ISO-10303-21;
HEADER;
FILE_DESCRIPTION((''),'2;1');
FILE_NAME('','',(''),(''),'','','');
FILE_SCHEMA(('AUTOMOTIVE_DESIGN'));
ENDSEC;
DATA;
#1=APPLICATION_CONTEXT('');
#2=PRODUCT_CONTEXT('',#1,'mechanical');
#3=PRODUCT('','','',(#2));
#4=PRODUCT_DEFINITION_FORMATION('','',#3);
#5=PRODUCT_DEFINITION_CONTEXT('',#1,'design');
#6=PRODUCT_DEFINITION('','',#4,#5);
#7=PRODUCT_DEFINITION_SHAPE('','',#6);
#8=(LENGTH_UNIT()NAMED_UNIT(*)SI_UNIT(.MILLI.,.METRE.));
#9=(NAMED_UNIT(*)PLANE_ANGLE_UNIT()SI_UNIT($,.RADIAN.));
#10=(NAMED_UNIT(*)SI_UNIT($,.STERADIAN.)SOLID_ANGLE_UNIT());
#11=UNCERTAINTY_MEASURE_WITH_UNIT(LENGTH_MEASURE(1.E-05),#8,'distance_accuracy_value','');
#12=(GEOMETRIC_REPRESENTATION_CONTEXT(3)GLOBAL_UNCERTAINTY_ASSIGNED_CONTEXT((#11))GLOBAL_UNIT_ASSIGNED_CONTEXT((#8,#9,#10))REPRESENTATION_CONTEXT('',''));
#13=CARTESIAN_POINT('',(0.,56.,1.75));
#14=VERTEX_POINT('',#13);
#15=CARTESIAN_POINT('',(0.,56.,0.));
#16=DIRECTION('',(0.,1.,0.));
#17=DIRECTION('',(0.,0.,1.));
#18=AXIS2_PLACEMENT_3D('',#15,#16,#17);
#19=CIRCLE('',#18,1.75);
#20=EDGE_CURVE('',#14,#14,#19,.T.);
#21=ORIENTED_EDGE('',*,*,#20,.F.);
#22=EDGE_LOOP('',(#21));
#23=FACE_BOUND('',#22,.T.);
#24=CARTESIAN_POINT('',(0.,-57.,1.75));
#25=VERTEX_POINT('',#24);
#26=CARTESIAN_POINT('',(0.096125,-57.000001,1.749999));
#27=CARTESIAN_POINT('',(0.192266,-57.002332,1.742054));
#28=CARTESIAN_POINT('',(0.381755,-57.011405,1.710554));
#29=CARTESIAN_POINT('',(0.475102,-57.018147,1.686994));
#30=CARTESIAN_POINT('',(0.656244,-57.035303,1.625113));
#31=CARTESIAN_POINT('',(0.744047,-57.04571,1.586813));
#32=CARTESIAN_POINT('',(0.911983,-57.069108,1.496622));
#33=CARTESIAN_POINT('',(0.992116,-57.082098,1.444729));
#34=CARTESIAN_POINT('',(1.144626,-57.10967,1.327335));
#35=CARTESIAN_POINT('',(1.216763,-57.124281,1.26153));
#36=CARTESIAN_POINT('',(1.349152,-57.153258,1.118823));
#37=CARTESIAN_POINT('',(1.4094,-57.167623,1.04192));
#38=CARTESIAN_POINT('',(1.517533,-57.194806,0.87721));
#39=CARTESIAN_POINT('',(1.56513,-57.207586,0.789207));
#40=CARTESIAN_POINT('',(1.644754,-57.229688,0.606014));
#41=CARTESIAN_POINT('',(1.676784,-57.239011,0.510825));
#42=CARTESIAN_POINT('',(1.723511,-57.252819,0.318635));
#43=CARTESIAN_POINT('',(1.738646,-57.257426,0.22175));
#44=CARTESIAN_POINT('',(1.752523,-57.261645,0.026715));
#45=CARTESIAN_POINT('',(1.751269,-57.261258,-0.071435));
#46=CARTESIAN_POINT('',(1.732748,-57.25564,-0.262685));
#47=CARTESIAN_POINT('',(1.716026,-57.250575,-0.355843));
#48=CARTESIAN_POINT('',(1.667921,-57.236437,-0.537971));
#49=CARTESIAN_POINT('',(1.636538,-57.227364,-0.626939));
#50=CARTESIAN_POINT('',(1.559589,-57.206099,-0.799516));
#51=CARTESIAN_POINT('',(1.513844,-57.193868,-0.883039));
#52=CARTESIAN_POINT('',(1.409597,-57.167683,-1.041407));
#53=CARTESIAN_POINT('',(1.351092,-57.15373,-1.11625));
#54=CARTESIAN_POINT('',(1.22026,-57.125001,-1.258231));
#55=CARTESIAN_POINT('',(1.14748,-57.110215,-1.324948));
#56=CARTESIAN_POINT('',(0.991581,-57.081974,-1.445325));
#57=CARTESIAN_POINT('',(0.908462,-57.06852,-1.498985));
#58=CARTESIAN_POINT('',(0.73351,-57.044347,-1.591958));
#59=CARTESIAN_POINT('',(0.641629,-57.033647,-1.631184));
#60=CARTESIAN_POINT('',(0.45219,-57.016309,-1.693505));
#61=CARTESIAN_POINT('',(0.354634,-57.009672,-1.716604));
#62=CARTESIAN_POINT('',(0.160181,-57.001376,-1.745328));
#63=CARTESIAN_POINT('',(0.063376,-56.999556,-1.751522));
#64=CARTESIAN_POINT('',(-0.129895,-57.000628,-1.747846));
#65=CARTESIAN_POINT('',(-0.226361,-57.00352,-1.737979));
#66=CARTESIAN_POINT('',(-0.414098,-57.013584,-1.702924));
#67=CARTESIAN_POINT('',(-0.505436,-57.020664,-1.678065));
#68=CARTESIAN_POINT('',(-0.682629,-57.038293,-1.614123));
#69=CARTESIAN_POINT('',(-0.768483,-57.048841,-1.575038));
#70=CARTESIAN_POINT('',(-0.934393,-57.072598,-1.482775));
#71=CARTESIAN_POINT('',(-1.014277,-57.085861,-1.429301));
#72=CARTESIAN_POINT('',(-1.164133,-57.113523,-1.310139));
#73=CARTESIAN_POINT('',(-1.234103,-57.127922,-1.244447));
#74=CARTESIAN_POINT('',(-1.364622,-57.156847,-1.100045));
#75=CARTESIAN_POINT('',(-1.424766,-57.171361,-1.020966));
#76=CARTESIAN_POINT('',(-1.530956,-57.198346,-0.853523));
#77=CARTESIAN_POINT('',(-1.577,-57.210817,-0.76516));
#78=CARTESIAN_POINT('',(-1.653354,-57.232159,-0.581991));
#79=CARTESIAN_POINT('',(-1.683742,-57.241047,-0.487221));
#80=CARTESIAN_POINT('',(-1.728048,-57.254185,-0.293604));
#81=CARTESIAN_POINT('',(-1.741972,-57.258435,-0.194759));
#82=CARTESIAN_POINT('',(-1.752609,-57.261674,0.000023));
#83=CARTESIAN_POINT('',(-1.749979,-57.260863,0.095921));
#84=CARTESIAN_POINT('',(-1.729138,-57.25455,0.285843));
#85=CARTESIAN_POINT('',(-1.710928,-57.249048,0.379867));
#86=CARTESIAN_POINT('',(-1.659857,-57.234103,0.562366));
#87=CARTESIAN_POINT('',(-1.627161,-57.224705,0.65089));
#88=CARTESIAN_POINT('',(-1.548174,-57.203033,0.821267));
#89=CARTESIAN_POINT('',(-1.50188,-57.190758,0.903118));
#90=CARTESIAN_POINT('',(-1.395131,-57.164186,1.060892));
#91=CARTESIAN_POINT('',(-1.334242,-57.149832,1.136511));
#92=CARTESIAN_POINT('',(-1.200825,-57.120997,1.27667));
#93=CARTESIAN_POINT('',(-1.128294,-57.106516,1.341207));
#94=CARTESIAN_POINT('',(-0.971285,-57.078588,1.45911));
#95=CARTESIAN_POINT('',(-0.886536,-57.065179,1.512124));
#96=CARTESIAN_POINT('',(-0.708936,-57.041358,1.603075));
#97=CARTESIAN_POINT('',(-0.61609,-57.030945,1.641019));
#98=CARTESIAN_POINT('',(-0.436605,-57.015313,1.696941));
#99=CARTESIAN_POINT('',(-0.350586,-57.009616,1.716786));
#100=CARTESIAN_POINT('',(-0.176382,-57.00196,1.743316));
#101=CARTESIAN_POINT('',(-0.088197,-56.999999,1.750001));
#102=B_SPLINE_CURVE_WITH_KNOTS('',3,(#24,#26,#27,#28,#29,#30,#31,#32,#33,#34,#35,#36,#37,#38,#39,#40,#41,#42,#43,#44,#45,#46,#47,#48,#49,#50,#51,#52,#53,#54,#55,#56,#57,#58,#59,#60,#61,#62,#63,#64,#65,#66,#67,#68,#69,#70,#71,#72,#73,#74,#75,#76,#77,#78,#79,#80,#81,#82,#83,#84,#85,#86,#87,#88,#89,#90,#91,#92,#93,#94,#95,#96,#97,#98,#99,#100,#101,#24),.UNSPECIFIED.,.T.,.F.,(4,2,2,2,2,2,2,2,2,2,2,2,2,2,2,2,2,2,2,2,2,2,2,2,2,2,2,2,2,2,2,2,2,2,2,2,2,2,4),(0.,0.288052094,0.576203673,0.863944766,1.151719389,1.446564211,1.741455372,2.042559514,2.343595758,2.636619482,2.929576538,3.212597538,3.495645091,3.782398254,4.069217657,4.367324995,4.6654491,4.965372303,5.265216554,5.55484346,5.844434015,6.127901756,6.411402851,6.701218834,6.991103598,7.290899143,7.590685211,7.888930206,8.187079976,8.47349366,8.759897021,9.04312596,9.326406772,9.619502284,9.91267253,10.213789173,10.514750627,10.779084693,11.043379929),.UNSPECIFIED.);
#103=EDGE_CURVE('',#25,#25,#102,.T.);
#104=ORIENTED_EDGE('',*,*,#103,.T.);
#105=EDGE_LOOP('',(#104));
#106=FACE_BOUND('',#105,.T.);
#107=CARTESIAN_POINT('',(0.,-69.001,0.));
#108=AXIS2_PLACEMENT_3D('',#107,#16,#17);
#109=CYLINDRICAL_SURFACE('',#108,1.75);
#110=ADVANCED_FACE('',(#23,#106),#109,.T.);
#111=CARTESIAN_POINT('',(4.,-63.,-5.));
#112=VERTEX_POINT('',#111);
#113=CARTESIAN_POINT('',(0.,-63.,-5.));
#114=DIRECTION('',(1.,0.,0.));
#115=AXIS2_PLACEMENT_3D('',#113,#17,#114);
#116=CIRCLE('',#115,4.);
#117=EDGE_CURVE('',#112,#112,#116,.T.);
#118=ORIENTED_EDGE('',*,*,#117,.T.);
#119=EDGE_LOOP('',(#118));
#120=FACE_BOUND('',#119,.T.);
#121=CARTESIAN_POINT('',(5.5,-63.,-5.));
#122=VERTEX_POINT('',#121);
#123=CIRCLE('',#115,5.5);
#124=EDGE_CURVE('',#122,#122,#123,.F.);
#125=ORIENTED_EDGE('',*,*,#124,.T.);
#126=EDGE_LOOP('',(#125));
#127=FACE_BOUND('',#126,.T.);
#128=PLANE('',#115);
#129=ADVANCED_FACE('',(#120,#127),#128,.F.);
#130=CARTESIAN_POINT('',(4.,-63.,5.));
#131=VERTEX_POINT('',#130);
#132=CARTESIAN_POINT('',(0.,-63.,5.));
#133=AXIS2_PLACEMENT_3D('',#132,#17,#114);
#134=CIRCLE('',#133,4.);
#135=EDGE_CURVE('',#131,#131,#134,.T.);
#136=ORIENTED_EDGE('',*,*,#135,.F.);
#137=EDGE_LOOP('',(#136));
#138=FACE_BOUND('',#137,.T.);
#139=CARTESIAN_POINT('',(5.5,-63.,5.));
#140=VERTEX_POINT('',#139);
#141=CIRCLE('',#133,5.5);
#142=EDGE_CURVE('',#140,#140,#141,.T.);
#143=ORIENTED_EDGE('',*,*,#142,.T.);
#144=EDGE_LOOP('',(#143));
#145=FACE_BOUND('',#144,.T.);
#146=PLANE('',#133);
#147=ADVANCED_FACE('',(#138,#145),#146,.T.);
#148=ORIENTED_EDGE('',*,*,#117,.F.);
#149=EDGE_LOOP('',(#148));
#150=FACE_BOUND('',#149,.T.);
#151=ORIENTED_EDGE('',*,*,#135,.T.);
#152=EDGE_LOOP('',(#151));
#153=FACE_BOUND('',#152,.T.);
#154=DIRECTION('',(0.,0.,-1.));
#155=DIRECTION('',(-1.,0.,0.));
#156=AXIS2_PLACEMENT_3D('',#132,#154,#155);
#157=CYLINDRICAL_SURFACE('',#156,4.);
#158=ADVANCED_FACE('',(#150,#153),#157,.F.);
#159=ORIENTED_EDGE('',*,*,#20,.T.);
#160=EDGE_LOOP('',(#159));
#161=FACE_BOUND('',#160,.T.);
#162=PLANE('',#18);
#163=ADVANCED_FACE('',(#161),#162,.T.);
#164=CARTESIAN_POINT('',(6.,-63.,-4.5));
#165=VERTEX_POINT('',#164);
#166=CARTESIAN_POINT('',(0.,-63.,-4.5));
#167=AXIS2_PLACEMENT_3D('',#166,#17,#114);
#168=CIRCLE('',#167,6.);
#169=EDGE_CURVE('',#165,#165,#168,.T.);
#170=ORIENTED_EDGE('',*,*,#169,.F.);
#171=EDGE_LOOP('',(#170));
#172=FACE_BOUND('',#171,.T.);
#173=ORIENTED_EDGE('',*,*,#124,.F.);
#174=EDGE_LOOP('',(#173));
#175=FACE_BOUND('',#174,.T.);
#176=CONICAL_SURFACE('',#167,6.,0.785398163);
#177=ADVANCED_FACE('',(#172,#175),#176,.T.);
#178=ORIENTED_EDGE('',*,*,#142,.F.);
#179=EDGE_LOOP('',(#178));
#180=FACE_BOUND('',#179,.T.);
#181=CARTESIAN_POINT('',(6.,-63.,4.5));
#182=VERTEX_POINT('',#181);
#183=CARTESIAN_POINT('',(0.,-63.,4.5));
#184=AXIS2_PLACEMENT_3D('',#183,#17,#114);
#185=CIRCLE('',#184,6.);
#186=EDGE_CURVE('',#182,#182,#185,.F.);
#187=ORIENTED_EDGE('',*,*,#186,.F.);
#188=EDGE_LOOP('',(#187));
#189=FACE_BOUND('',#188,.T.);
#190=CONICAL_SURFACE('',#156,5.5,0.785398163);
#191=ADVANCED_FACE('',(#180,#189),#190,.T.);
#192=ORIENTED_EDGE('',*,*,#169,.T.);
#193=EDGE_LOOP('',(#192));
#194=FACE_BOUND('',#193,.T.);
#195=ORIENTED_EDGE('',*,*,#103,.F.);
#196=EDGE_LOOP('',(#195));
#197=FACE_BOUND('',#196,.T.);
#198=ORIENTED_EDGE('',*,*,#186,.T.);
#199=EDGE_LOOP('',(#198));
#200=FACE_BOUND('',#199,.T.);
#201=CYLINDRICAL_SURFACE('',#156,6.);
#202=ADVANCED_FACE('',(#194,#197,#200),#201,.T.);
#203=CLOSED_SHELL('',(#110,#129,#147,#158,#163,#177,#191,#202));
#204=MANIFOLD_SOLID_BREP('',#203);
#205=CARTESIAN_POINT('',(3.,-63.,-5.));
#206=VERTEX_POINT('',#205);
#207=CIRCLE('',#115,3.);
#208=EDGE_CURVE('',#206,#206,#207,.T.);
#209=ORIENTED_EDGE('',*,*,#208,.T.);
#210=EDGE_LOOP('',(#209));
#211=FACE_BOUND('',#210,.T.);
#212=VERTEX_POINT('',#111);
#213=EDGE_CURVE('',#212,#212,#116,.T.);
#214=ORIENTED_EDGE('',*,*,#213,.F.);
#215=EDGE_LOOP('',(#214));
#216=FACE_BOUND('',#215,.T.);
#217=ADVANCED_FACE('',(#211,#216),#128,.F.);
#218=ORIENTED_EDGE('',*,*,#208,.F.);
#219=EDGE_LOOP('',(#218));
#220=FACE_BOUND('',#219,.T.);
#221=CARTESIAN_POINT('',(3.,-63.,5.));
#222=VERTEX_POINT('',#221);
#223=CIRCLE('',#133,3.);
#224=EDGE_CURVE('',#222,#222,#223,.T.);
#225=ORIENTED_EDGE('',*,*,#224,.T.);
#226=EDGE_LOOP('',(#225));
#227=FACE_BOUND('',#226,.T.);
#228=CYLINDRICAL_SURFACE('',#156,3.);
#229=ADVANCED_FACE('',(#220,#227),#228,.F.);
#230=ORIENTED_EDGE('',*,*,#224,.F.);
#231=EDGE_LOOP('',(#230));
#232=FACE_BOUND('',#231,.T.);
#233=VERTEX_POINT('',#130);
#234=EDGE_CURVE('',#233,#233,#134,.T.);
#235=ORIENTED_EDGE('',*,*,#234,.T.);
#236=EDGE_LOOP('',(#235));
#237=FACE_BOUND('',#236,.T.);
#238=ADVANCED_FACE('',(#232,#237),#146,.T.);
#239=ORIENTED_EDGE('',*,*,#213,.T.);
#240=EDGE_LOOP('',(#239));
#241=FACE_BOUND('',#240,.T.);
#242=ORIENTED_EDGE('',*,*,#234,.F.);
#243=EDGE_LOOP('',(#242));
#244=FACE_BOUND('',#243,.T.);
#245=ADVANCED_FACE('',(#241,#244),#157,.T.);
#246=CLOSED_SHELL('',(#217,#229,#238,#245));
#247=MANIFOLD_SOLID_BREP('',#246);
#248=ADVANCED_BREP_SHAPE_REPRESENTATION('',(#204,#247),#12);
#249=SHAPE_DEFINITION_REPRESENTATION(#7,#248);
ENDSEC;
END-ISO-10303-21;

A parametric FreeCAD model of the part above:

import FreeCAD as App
import Part
import Sketcher
from FreeCAD import Vector


def edges_at(feature, points):
    """Names of the edges that pass closest to the given points."""
    edges = feature.Shape.Edges
    near = lambda p: min(range(len(edges)), key=lambda i: edges[i].distToShape(Part.Vertex(*p))[0])
    return sorted({f"Edge{near(p) + 1}" for p in points})


def add_polygon(sketch, points):
    """Adds a closed chain of lines whose ends are joined by coincident constraints."""
    first, n = sketch.GeometryCount, len(points)
    for a, b in zip(points, points[1:] + points[:1]):
        sketch.addGeometry(Part.LineSegment(App.Vector(*a, 0), App.Vector(*b, 0)), False)
    for i in range(n):
        sketch.addConstraint(Sketcher.Constraint("Coincident", first + i, 2, first + (i + 1) % n, 1))

doc = App.newDocument("Part")
params = doc.addObject("Spreadsheet::Sheet", "Params")
for row, (alias, value) in enumerate([
    ("sketch1_diameter", "6 mm"),
    ("pad1_length", "56 mm"),
    ("pad1_length2", "58 mm"),
    ("sketch2_diameter", "3.5 mm"),
    ("pocket1_length", "114 mm"),
    ("sketch3_diameter", "12 mm"),
    ("sketch3_diameter2", "8 mm"),
    ("pad2_length", "10 mm"),
    ("chamfer_size", "0.5 mm"),
    ("sketch4_diameter", "8 mm"),
    ("sketch4_diameter2", "6 mm"),
    ("pad3_length", "10 mm"),
], start=1):
    params.set(f"A{row}", alias)
    params.set(f"B{row}", "=" + value)
    params.setAlias(f"B{row}", alias)

body = doc.addObject("PartDesign::Body", "Body")

sketch1 = body.newObject("Sketcher::SketchObject", "Sketch")
sketch1.AttachmentSupport = (doc.getObject("XZ_Plane"), [""])
sketch1.MapMode = "FlatFace"
sketch1.addGeometry(Part.Circle(Vector(0, 0, 0), Vector(0, 0, 1), 3), False)
sketch1.addConstraint([
    Sketcher.Constraint("Coincident", 0, 3, -1, 1),
    Sketcher.Constraint("Diameter", 0, 6.0),
])
sketch1.setExpression("Constraints[1]", "Params.sketch1_diameter")
pad1 = body.newObject("PartDesign::Pad", "Pad")
pad1.Profile = sketch1
pad1.Type = "TwoLengths"
pad1.setExpression("Length", "Params.pad1_length")
pad1.setExpression("Length2", "Params.pad1_length2")
pad1.Reversed = True

sketch2 = body.newObject("Sketcher::SketchObject", "Sketch001")
sketch2.AttachmentSupport = (doc.getObject("XZ_Plane"), [""])
sketch2.MapMode = "FlatFace"
sketch2.AttachmentOffset = App.Placement(Vector(0, 0, -56), App.Rotation())
add_polygon(sketch2, [(-19.6, -18.6), (-19.6, 18.6), (19.6, 18.6), (19.6, -18.6)])
sketch2.addGeometry(Part.Circle(Vector(0, 0, 0), Vector(0, 0, 1), 1.8), False)
sketch2.addConstraint([
    Sketcher.Constraint("Vertical", 0),
    Sketcher.Constraint("Horizontal", 1),
    Sketcher.Constraint("Vertical", 2),
    Sketcher.Constraint("Horizontal", 3),
    Sketcher.Constraint("Coincident", 4, 3, -1, 1),
    Sketcher.Constraint("Symmetric", 0, 2, 2, 2, -1, 1),
    Sketcher.Constraint("Diameter", 4, 3.5),
    Sketcher.Constraint("DistanceX", 1, 1, 1, 2, 39.194),
    Sketcher.Constraint("DistanceY", 0, 1, 0, 2, 37.194),
])
sketch2.setExpression("Constraints[10]", "Params.sketch2_diameter")
pocket1 = body.newObject("PartDesign::Pocket", "Pocket")
pocket1.Profile = sketch2
pocket1.setExpression("Length", "Params.pocket1_length")
pocket1.Reversed = True
body2 = doc.addObject("PartDesign::Body", "Body001")

sketch3 = body2.newObject("Sketcher::SketchObject", "Sketch002")
sketch3.AttachmentSupport = (doc.getObject("XY_Plane001"), [""])
sketch3.MapMode = "FlatFace"
sketch3.addGeometry([
    Part.Circle(Vector(0, -63, 0), Vector(0, 0, 1), 6),
    Part.Circle(Vector(0, -63, 0), Vector(0, 0, 1), 4),
], False)
sketch3.addConstraint([
    Sketcher.Constraint("Coincident", 1, 3, 0, 3),
    Sketcher.Constraint("PointOnObject", 0, 3, -2),
    Sketcher.Constraint("Diameter", 0, 12.0),
    Sketcher.Constraint("Diameter", 1, 8.0),
    Sketcher.Constraint("DistanceY", 0, 3, -1, 1, 63.0),
])
sketch3.setExpression("Constraints[2]", "Params.sketch3_diameter")
sketch3.setExpression("Constraints[3]", "Params.sketch3_diameter2")
pad2 = body2.newObject("PartDesign::Pad", "Pad001")
pad2.Profile = sketch3
pad2.setExpression("Length", "Params.pad2_length")
pad2.Midplane = True
doc.recompute()

chamfer = body2.newObject("PartDesign::Chamfer", "Chamfer")
chamfer.Base = (pad2, edges_at(pad2, [(-6, -63, -5), (-6, -63, 5)]))
chamfer.setExpression("Size", "Params.chamfer_size")
body3 = doc.addObject("PartDesign::Body", "Body002")

sketch4 = body3.newObject("Sketcher::SketchObject", "Sketch003")
sketch4.AttachmentSupport = (doc.getObject("XY_Plane002"), [""])
sketch4.MapMode = "FlatFace"
sketch4.addGeometry([
    Part.Circle(Vector(0, -63, 0), Vector(0, 0, 1), 4),
    Part.Circle(Vector(0, -63, 0), Vector(0, 0, 1), 3),
], False)
sketch4.addConstraint([
    Sketcher.Constraint("Coincident", 1, 3, 0, 3),
    Sketcher.Constraint("PointOnObject", 0, 3, -2),
    Sketcher.Constraint("Diameter", 0, 8.0),
    Sketcher.Constraint("Diameter", 1, 6.0),
    Sketcher.Constraint("DistanceY", 0, 3, -1, 1, 63.0),
])
sketch4.setExpression("Constraints[2]", "Params.sketch4_diameter")
sketch4.setExpression("Constraints[3]", "Params.sketch4_diameter2")
pad3 = body3.newObject("PartDesign::Pad", "Pad002")
pad3.Profile = sketch4
pad3.setExpression("Length", "Params.pad3_length")
pad3.Midplane = True
doc.recompute()

boolean = body.newObject("PartDesign::Boolean", "Boolean")
boolean.Type = "Fuse"
boolean.addObjects([body2])

doc.recompute()
